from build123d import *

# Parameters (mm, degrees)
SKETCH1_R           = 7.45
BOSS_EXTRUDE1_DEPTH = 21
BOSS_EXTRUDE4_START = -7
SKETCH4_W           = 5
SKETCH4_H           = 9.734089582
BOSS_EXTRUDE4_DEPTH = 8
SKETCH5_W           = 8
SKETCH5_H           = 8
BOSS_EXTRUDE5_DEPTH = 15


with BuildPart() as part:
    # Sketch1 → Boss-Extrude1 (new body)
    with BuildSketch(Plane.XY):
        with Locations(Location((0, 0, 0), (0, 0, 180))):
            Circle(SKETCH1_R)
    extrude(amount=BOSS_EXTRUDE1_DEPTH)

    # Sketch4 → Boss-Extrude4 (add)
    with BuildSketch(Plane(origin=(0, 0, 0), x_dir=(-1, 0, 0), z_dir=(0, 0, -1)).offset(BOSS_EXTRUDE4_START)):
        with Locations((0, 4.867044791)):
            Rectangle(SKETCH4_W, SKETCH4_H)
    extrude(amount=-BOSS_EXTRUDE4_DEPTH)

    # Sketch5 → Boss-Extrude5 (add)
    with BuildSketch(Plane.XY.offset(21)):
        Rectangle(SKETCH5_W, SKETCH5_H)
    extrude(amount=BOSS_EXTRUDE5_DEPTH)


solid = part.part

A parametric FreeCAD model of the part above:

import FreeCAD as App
import Part
import Sketcher
Q = App.Units.Quantity

doc = App.newDocument("Part")
body = doc.addObject("PartDesign::Body", "Body")

# Sketch on XY plane
sketch1 = body.newObject("Sketcher::SketchObject", "Sketch")
sketch1.AttachmentSupport = (doc.getObject("XY_Plane"), [""])
sketch1.MapMode = "FlatFace"
sketch1.addGeometry(Part.Circle(App.Vector(0, 0, 0), App.Vector(0, 0, 1), 7), False)
sketch1.addConstraint([
    Sketcher.Constraint("Coincident", 0, 3, -1, 1),
    Sketcher.Constraint("Diameter", 0, Q("14.9 mm")),
])
pad1 = body.newObject("PartDesign::Pad", "Pad")
pad1.Profile = sketch1
pad1.Length = 21

# Sketch on XY plane
sketch2 = body.newObject("Sketcher::SketchObject", "Sketch001")
sketch2.AttachmentSupport = (doc.getObject("XY_Plane"), [""])
sketch2.MapMode = "FlatFace"
sketch2.AttachmentOffset = App.Placement(App.Vector(0, 0, 7), App.Rotation())
sketch2.addGeometry([
    Part.LineSegment(App.Vector(2, 10, 0), App.Vector(2, 0, 0)),
    Part.LineSegment(App.Vector(2, 0, 0), App.Vector(-2, 0, 0)),
    Part.LineSegment(App.Vector(-2, 0, 0), App.Vector(-2, 10, 0)),
    Part.LineSegment(App.Vector(-2, 10, 0), App.Vector(2, 10, 0)),
], False)
sketch2.addConstraint([
    Sketcher.Constraint("Coincident", 0, 2, 1, 1),
    Sketcher.Constraint("Coincident", 1, 2, 2, 1),
    Sketcher.Constraint("Coincident", 2, 2, 3, 1),
    Sketcher.Constraint("Coincident", 3, 2, 0, 1),
    Sketcher.Constraint("Vertical", 0),
    Sketcher.Constraint("Horizontal", 1),
    Sketcher.Constraint("Vertical", 2),
    Sketcher.Constraint("Horizontal", 3),
    Sketcher.Constraint("Symmetric", 0, 2, 1, 2, -1, 1),
    Sketcher.Constraint("DistanceX", 1, 2, 1, 1, Q("5 mm")),
    Sketcher.Constraint("DistanceY", 0, 2, 0, 1, Q("9.73409 mm")),
])
pad2 = body.newObject("PartDesign::Pad", "Pad001")
pad2.Profile = sketch2
pad2.Length = 8

# Sketch on XY plane
sketch3 = body.newObject("Sketcher::SketchObject", "Sketch002")
sketch3.AttachmentSupport = (doc.getObject("XY_Plane"), [""])
sketch3.MapMode = "FlatFace"
sketch3.AttachmentOffset = App.Placement(App.Vector(0, 0, 21), App.Rotation())
sketch3.addGeometry([
    Part.LineSegment(App.Vector(-4, 4, 0), App.Vector(-4, -4, 0)),
    Part.LineSegment(App.Vector(-4, -4, 0), App.Vector(4, -4, 0)),
    Part.LineSegment(App.Vector(4, -4, 0), App.Vector(4, 4, 0)),
    Part.LineSegment(App.Vector(4, 4, 0), App.Vector(-4, 4, 0)),
], False)
sketch3.addConstraint([
    Sketcher.Constraint("Coincident", 0, 2, 1, 1),
    Sketcher.Constraint("Coincident", 1, 2, 2, 1),
    Sketcher.Constraint("Coincident", 2, 2, 3, 1),
    Sketcher.Constraint("Coincident", 3, 2, 0, 1),
    Sketcher.Constraint("Vertical", 0),
    Sketcher.Constraint("Horizontal", 1),
    Sketcher.Constraint("Vertical", 2),
    Sketcher.Constraint("Horizontal", 3),
    Sketcher.Constraint("Symmetric", 0, 2, 2, 2, -1, 1),
    Sketcher.Constraint("Equal", 3, 0),
    Sketcher.Constraint("DistanceX", 1, 1, 1, 2, Q("8 mm")),
])
pad3 = body.newObject("PartDesign::Pad", "Pad002")
pad3.Profile = sketch3
pad3.Length = 15

doc.recompute()
